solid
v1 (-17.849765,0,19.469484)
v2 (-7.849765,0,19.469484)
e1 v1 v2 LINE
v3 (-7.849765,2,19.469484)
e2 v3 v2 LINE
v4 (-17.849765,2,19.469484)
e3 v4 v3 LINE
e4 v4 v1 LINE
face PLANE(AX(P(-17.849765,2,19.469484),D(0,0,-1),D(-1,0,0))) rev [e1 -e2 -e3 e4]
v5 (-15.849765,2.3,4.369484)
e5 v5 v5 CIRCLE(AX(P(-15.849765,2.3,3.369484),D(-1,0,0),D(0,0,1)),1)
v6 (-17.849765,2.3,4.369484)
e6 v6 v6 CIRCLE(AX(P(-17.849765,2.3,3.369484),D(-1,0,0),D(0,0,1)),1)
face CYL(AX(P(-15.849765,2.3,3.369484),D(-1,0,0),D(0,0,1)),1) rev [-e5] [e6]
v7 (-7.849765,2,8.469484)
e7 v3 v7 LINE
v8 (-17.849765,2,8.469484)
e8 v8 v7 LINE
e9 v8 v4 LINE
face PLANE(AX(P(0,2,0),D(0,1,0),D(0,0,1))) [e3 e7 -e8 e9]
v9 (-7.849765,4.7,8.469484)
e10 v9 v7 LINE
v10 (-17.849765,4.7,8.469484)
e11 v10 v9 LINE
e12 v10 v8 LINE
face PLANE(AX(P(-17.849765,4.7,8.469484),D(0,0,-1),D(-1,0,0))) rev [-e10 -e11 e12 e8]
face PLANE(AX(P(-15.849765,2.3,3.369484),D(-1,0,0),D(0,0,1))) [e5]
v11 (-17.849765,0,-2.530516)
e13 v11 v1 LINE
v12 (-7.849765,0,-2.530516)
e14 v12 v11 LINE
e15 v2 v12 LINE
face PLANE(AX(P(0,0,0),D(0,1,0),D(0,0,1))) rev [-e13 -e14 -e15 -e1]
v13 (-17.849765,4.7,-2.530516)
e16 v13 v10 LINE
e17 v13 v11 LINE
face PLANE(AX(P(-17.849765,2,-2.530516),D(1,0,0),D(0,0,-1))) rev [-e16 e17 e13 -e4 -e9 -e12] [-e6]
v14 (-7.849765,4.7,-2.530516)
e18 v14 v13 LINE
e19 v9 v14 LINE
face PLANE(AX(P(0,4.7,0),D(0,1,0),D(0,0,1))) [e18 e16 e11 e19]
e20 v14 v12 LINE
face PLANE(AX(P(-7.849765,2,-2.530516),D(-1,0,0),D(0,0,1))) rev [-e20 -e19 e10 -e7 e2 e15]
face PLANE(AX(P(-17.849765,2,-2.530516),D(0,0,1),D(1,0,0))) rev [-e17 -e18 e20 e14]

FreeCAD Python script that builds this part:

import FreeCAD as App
import Part
import Sketcher


def add_polygon(sketch, points):
    """Adds a closed chain of lines whose ends are joined by coincident constraints."""
    first, n = sketch.GeometryCount, len(points)
    for a, b in zip(points, points[1:] + points[:1]):
        sketch.addGeometry(Part.LineSegment(App.Vector(*a, 0), App.Vector(*b, 0)), False)
    for i in range(n):
        sketch.addConstraint(Sketcher.Constraint("Coincident", first + i, 2, first + (i + 1) % n, 1))

doc = App.newDocument("Part")
body = doc.addObject("PartDesign::Body", "Body")

# Sketch on XZ plane
sketch1 = body.newObject("Sketcher::SketchObject", "Sketch")
sketch1.AttachmentSupport = (doc.getObject("XZ_Plane"), [""])
sketch1.MapMode = "FlatFace"
add_polygon(sketch1, [(-18, -3), (-18, 19), (-8, 19), (-8, -3)])  # lines 0-3
sketch1.addConstraint([
    Sketcher.Constraint("Vertical", 0),
    Sketcher.Constraint("Horizontal", 1),
    Sketcher.Constraint("Vertical", 2),
    Sketcher.Constraint("Horizontal", 3),
    Sketcher.Constraint("DistanceX", 1, 1, 1, 2, 10.0),
    Sketcher.Constraint("DistanceY", 0, 1, 0, 2, 22.0),
    Sketcher.Constraint("DistanceX", 0, 2, -1, 1, 17.849765),
    Sketcher.Constraint("DistanceY", -1, 1, 0, 2, 19.469484),
])
pad1 = body.newObject("PartDesign::Pad", "Pad")
pad1.Profile = sketch1
pad1.Length = 2
pad1.Reversed = True

# Sketch on XZ plane
sketch2 = body.newObject("Sketcher::SketchObject", "Sketch001")
sketch2.AttachmentSupport = (doc.getObject("XZ_Plane"), [""])
sketch2.MapMode = "FlatFace"
sketch2.AttachmentOffset = App.Placement(App.Vector(0, 0, -2), App.Rotation())
add_polygon(sketch2, [(-18, -3), (-18, 8), (-8, 8), (-8, -3)])  # lines 0-3
sketch2.addConstraint([
    Sketcher.Constraint("Vertical", 0),
    Sketcher.Constraint("Horizontal", 1),
    Sketcher.Constraint("Vertical", 2),
    Sketcher.Constraint("Horizontal", 3),
    Sketcher.Constraint("DistanceX", 1, 1, 1, 2, 10.0),
    Sketcher.Constraint("DistanceY", 0, 1, 0, 2, 11.0),
    Sketcher.Constraint("DistanceX", 0, 2, -1, 1, 17.849765),
    Sketcher.Constraint("DistanceY", -1, 1, 0, 2, 8.469484),
])
pad2 = body.newObject("PartDesign::Pad", "Pad001")
pad2.Profile = sketch2
pad2.Length = 2.7
pad2.Reversed = True

# Sketch on YZ plane
sketch3 = body.newObject("Sketcher::SketchObject", "Sketch002")
sketch3.AttachmentSupport = (doc.getObject("YZ_Plane"), [""])
sketch3.MapMode = "FlatFace"
sketch3.AttachmentOffset = App.Placement(App.Vector(0, 0, -17.849765), App.Rotation())
sketch3.addGeometry(Part.Circle(App.Vector(2.3, 3.4, 0), App.Vector(0, 0, 1), 1), False)
sketch3.addConstraint([
    Sketcher.Constraint("Diameter", 0, 2.0),
    Sketcher.Constraint("DistanceX", -1, 1, 0, 3, 2.3),
    Sketcher.Constraint("DistanceY", -1, 1, 0, 3, 3.369484),
])
pocket1 = body.newObject("PartDesign::Pocket", "Pocket")
pocket1.Profile = sketch3
pocket1.Length = 2
pocket1.Reversed = True

doc.recompute()
